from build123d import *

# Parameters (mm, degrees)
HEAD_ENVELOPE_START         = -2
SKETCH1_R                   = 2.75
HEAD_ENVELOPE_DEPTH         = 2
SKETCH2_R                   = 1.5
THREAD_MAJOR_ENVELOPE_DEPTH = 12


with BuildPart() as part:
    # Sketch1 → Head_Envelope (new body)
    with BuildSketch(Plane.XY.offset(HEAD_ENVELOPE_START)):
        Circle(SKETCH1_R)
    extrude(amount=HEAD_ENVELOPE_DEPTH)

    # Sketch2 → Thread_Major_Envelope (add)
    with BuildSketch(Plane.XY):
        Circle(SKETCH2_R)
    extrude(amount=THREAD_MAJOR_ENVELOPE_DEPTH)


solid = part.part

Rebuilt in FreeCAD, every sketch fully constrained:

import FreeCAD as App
import Part
import Sketcher

doc = App.newDocument("Part")
body = doc.addObject("PartDesign::Body", "Body")

sketch1 = body.newObject("Sketcher::SketchObject", "Sketch")
sketch1.AttachmentSupport = (doc.getObject("XY_Plane"), [""])
sketch1.MapMode = "FlatFace"
sketch1.AttachmentOffset = App.Placement(App.Vector(0, 0, -2), App.Rotation())
sketch1.addGeometry(Part.Circle(App.Vector(0, 0, 0), App.Vector(0, 0, 1), 2.8), False)
sketch1.addConstraint(Sketcher.Constraint("Coincident", 0, 3, -1, 1))
sketch1.addConstraint(Sketcher.Constraint("Diameter", 0, 5.5))
pad1 = body.newObject("PartDesign::Pad", "Pad")
pad1.Profile = sketch1
pad1.Length = 2

sketch2 = body.newObject("Sketcher::SketchObject", "Sketch001")
sketch2.AttachmentSupport = (doc.getObject("XY_Plane"), [""])
sketch2.MapMode = "FlatFace"
sketch2.addGeometry(Part.Circle(App.Vector(0, 0, 0), App.Vector(0, 0, 1), 1.5), False)
sketch2.addConstraint(Sketcher.Constraint("Coincident", 0, 3, -1, 1))
sketch2.addConstraint(Sketcher.Constraint("Diameter", 0, 3.0))
pad2 = body.newObject("PartDesign::Pad", "Pad001")
pad2.Profile = sketch2
pad2.Length = 12

doc.recompute()
